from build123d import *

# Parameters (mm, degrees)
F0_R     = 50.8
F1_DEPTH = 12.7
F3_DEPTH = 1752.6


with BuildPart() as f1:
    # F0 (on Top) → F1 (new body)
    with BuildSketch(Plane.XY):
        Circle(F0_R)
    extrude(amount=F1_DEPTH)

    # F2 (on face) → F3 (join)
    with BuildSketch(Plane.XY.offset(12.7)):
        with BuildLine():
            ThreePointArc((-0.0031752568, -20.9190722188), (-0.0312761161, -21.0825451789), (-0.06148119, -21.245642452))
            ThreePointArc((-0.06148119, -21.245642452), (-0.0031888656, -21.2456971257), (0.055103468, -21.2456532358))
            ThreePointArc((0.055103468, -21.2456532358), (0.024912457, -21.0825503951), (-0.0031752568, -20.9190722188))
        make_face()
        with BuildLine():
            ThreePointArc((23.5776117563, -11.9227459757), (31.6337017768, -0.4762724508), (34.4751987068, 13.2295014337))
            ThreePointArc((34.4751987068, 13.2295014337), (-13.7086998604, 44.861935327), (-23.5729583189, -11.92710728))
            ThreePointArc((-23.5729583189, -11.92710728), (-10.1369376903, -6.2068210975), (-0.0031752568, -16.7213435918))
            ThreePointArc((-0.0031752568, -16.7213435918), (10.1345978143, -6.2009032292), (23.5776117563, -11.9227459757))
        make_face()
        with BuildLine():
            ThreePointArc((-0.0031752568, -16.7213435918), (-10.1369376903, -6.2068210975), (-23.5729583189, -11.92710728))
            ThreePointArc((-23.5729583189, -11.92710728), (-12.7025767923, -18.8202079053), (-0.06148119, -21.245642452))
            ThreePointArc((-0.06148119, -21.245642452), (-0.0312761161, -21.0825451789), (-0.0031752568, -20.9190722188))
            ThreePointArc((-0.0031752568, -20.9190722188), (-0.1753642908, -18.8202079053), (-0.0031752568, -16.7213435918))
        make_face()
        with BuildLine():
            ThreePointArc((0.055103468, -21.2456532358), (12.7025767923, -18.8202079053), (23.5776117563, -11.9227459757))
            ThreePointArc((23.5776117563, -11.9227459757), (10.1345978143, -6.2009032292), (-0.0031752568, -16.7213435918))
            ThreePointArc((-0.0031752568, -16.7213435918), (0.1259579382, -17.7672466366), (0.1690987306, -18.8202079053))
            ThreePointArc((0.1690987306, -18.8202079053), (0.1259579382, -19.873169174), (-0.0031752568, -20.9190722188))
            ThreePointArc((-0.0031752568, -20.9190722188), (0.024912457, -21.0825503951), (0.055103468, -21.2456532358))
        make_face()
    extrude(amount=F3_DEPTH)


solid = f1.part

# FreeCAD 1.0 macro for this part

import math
import FreeCAD as App
import Part
import Sketcher
Q = App.Units.Quantity

doc = App.newDocument("Part")
body = doc.addObject("PartDesign::Body", "Body")

sketch1 = body.newObject("Sketcher::SketchObject", "Sketch")
sketch1.AttachmentSupport = (doc.getObject("XY_Plane"), [""])
sketch1.MapMode = "FlatFace"
sketch1.addGeometry(Part.Circle(App.Vector(0, 0, 0), App.Vector(0, 0, 1), 51), False)
sketch1.addConstraint([
    Sketcher.Constraint("Coincident", 0, 3, -1, 1),
    Sketcher.Constraint("Diameter", 0, Q("4 in")),
])
pad1 = body.newObject("PartDesign::Pad", "Pad")
pad1.Profile = sketch1
pad1.Length = Q("0.5 in")

sketch2 = body.newObject("Sketcher::SketchObject", "Sketch001")
sketch2.AttachmentSupport = (doc.getObject("XY_Plane"), [""])
sketch2.MapMode = "FlatFace"
sketch2.AttachmentOffset = App.Placement(App.Vector(0, 0, 0.5 * 25.4), App.Rotation())
sketch2.addGeometry([
    Part.ArcOfCircle(Part.Circle(App.Vector(0, 13.23, 0), App.Vector(0, 0, 1), 34.48), math.radians(-90.1), math.radians(-89.91)),
    Part.ArcOfCircle(Part.Circle(App.Vector(0, 13.23, 0), App.Vector(0, 0, 1), 34.48), math.radians(-90), math.radians(-47)),
    Part.ArcOfCircle(Part.Circle(App.Vector(0, 13.23, 0), App.Vector(0, 0, 1), 34.48), math.radians(-47), math.radians(0)),
    Part.ArcOfCircle(Part.Circle(App.Vector(0, 13.23, 0), App.Vector(0, 0, 1), 34.48), math.radians(0), math.radians(227)),
    Part.ArcOfCircle(Part.Circle(App.Vector(0, 13.23, 0), App.Vector(0, 0, 1), 34.48), math.radians(-133), math.radians(-90)),
    Part.ArcOfCircle(Part.Circle(App.Vector(12.7, -18.82, 0), App.Vector(0, 0, 1), 12.88), math.radians(170.62), math.radians(189.38)),
    Part.ArcOfCircle(Part.Circle(App.Vector(-12.7, -18.82, 0), App.Vector(0, 0, 1), 12.87), math.radians(0), math.radians(9.38)),
    Part.ArcOfCircle(Part.Circle(App.Vector(-12.7, -18.82, 0), App.Vector(0, 0, 1), 12.87), math.radians(-9.38), math.radians(0)),
], False)
sketch2.addConstraint([
    Sketcher.Constraint("Tangent", 0, 2, 1, 1),
    Sketcher.Constraint("Tangent", 1, 2, 2, 1),
    Sketcher.Constraint("Tangent", 2, 2, 3, 1),
    Sketcher.Constraint("Tangent", 3, 2, 4, 1),
    Sketcher.Constraint("Tangent", 4, 2, 0, 1),
    Sketcher.Constraint("Coincident", 5, 1, 6, 2),
    Sketcher.Constraint("Tangent", 6, 1, 7, 2),
    Sketcher.Constraint("Coincident", 7, 1, 5, 2),
    Sketcher.Constraint("Equal", 1, 2),
    Sketcher.Constraint("Equal", 6, 7),
    Sketcher.Constraint("Symmetric", 5, 3, 6, 3, -2),
    Sketcher.Constraint("PointOnObject", 0, 3, -2),
    Sketcher.Constraint("Horizontal", 4, 3, 2, 2),
    Sketcher.Constraint("Horizontal", 7, 3, 6, 1),
    Sketcher.Constraint("Radius", 1, Q("34.475199 mm")),
    Sketcher.Constraint("Radius", 5, Q("12.877941 mm")),
    Sketcher.Constraint("Radius", 0, Q("34.475182 mm")),
    Sketcher.Constraint("Radius", 6, Q("12.871676 mm")),
    Sketcher.Constraint("DistanceY", -1, 1, 1, 3, Q("13.229501 mm")),
    Sketcher.Constraint("DistanceX", -1, 1, 6, 1, Q("0.169099 mm")),
    Sketcher.Constraint("DistanceY", 7, 3, 3, 2, Q("6.893101 mm")),
    Sketcher.Constraint("DistanceY", 4, 2, 5, 1, Q("4.524299 mm")),
    Sketcher.Constraint("DistanceX", -1, 1, 1, 2, Q("23.577612 mm")),
    Sketcher.Constraint("DistanceX", 4, 2, -1, 1, Q("0.061481 mm")),
    Sketcher.Constraint("DistanceX", 6, 3, 0, 2, Q("12.75768 mm")),
])
pad2 = body.newObject("PartDesign::Pad", "Pad001")
pad2.Profile = sketch2
pad2.Length = Q("69 in")

doc.recompute()
